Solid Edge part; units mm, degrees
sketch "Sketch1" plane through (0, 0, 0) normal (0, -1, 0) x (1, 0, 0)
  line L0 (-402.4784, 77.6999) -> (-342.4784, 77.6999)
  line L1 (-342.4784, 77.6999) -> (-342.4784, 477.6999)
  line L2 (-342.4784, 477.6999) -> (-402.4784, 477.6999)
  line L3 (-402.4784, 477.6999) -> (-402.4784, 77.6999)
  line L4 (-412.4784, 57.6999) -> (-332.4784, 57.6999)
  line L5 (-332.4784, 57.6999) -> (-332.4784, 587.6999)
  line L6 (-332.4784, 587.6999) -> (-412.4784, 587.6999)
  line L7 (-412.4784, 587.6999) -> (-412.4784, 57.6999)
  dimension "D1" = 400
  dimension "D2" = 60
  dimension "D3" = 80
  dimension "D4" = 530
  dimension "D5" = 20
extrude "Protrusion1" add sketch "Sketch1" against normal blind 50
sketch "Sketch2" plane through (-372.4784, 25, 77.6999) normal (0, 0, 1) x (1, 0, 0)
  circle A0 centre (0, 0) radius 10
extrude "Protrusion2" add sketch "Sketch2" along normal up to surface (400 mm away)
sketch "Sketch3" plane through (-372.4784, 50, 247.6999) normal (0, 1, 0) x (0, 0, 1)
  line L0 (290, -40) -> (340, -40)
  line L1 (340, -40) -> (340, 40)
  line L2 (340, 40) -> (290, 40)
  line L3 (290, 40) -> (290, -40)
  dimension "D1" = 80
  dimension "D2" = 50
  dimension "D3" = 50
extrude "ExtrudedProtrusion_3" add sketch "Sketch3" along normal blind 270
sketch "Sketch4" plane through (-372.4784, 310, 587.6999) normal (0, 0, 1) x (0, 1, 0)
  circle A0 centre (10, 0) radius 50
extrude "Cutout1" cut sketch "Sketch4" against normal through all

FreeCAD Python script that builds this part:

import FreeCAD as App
import Part
import Sketcher

V = App.Vector
Q = App.Units.Quantity

doc = App.newDocument("Part")
params = doc.addObject("Spreadsheet::Sheet", "Params")
for row, (alias, value) in enumerate([
    ("sketch1_width", "80 mm"),
    ("sketch1_width2", "60 mm"),
    ("sketch1_height", "530 mm"),
    ("sketch1_height2", "400 mm"),
    ("pad1_length", "50 mm"),
    ("sketch2_diameter", "20 mm"),
    ("pad2_length", "400 mm"),
    ("sketch3_width", "80 mm"),
    ("sketch3_height", "50 mm"),
    ("pad3_length", "270 mm"),
    ("sketch4_diameter", "100 mm"),
], start=1):
    params.set(f"A{row}", alias)
    params.set(f"B{row}", "=" + value)
    params.setAlias(f"B{row}", alias)

body = doc.addObject("PartDesign::Body", "Body")

sketch1 = body.newObject("Sketcher::SketchObject", "Sketch")
sketch1.AttachmentSupport = (doc.getObject("XZ_Plane"), [""])
sketch1.MapMode = "FlatFace"
sketch1.addGeometry(Part.LineSegment(V(-412.4784, 587.6999, 0), V(-412.4784, 57.6999, 0)), False)
sketch1.addGeometry(Part.LineSegment(V(-412.4784, 57.6999, 0), V(-332.4784, 57.6999, 0)), False)
sketch1.addGeometry(Part.LineSegment(V(-332.4784, 57.6999, 0), V(-332.4784, 587.6999, 0)), False)
sketch1.addGeometry(Part.LineSegment(V(-332.4784, 587.6999, 0), V(-412.4784, 587.6999, 0)), False)
sketch1.addGeometry(Part.LineSegment(V(-342.4784, 77.6999, 0), V(-402.4784, 77.6999, 0)), False)
sketch1.addGeometry(Part.LineSegment(V(-402.4784, 77.6999, 0), V(-402.4784, 477.6999, 0)), False)
sketch1.addGeometry(Part.LineSegment(V(-402.4784, 477.6999, 0), V(-342.4784, 477.6999, 0)), False)
sketch1.addGeometry(Part.LineSegment(V(-342.4784, 477.6999, 0), V(-342.4784, 77.6999, 0)), False)
sketch1.addConstraint(Sketcher.Constraint("Coincident", 0, 2, 1, 1))
sketch1.addConstraint(Sketcher.Constraint("Coincident", 1, 2, 2, 1))
sketch1.addConstraint(Sketcher.Constraint("Coincident", 2, 2, 3, 1))
sketch1.addConstraint(Sketcher.Constraint("Coincident", 3, 2, 0, 1))
sketch1.addConstraint(Sketcher.Constraint("Coincident", 4, 2, 5, 1))
sketch1.addConstraint(Sketcher.Constraint("Coincident", 5, 2, 6, 1))
sketch1.addConstraint(Sketcher.Constraint("Coincident", 6, 2, 7, 1))
sketch1.addConstraint(Sketcher.Constraint("Coincident", 7, 2, 4, 1))
sketch1.addConstraint(Sketcher.Constraint("Vertical", 0))
sketch1.addConstraint(Sketcher.Constraint("Horizontal", 1))
sketch1.addConstraint(Sketcher.Constraint("Vertical", 2))
sketch1.addConstraint(Sketcher.Constraint("Horizontal", 3))
sketch1.addConstraint(Sketcher.Constraint("Horizontal", 4))
sketch1.addConstraint(Sketcher.Constraint("Vertical", 5))
sketch1.addConstraint(Sketcher.Constraint("Horizontal", 6))
sketch1.addConstraint(Sketcher.Constraint("Vertical", 7))
sketch1.addConstraint(Sketcher.Constraint("DistanceX", 1, 1, 1, 2, Q("80 mm")))
sketch1.addConstraint(Sketcher.Constraint("DistanceX", 4, 2, 4, 1, Q("60 mm")))
sketch1.addConstraint(Sketcher.Constraint("DistanceY", 0, 2, 0, 1, Q("530 mm")))
sketch1.addConstraint(Sketcher.Constraint("DistanceY", 5, 1, 5, 2, Q("400 mm")))
sketch1.addConstraint(Sketcher.Constraint("DistanceX", 0, 2, 4, 2, Q("10 mm")))
sketch1.addConstraint(Sketcher.Constraint("DistanceY", 0, 2, 4, 2, Q("20 mm")))
sketch1.addConstraint(Sketcher.Constraint("DistanceX", 0, 2, -1, 1, Q("412.4784 mm")))
sketch1.addConstraint(Sketcher.Constraint("DistanceY", -1, 1, 0, 2, Q("57.7 mm")))
sketch1.setExpression("Constraints[16]", "Params.sketch1_width")
sketch1.setExpression("Constraints[17]", "Params.sketch1_width2")
sketch1.setExpression("Constraints[18]", "Params.sketch1_height")
sketch1.setExpression("Constraints[19]", "Params.sketch1_height2")
pad1 = body.newObject("PartDesign::Pad", "Pad")
pad1.Profile = sketch1
pad1.setExpression("Length", "Params.pad1_length")
pad1.Reversed = True

sketch2 = body.newObject("Sketcher::SketchObject", "Sketch001")
sketch2.AttachmentSupport = (doc.getObject("XY_Plane"), [""])
sketch2.MapMode = "FlatFace"
sketch2.AttachmentOffset = App.Placement(V(0, 0, 77.6999), App.Rotation())
sketch2.addGeometry(Part.Circle(V(-372.4784, 25, 0), V(0, 0, 1), 10), False)
sketch2.addConstraint(Sketcher.Constraint("Diameter", 0, Q("20 mm")))
sketch2.addConstraint(Sketcher.Constraint("DistanceY", -1, 1, 0, 3, Q("25 mm")))
sketch2.addConstraint(Sketcher.Constraint("DistanceX", 0, 3, -1, 1, Q("372.4784 mm")))
sketch2.setExpression("Constraints[0]", "Params.sketch2_diameter")
pad2 = body.newObject("PartDesign::Pad", "Pad001")
pad2.Profile = sketch2
pad2.setExpression("Length", "Params.pad2_length")

sketch3 = body.newObject("Sketcher::SketchObject", "Sketch002")
sketch3.AttachmentSupport = (doc.getObject("XZ_Plane"), [""])
sketch3.MapMode = "FlatFace"
sketch3.AttachmentOffset = App.Placement(V(0, 0, -50), App.Rotation())
sketch3.addGeometry(Part.LineSegment(V(-332.4784, 537.6999, 0), V(-412.4784, 537.6999, 0)), False)
sketch3.addGeometry(Part.LineSegment(V(-412.4784, 537.6999, 0), V(-412.4784, 587.6999, 0)), False)
sketch3.addGeometry(Part.LineSegment(V(-412.4784, 587.6999, 0), V(-332.4784, 587.6999, 0)), False)
sketch3.addGeometry(Part.LineSegment(V(-332.4784, 587.6999, 0), V(-332.4784, 537.6999, 0)), False)
sketch3.addConstraint(Sketcher.Constraint("Coincident", 0, 2, 1, 1))
sketch3.addConstraint(Sketcher.Constraint("Coincident", 1, 2, 2, 1))
sketch3.addConstraint(Sketcher.Constraint("Coincident", 2, 2, 3, 1))
sketch3.addConstraint(Sketcher.Constraint("Coincident", 3, 2, 0, 1))
sketch3.addConstraint(Sketcher.Constraint("Horizontal", 0))
sketch3.addConstraint(Sketcher.Constraint("Vertical", 1))
sketch3.addConstraint(Sketcher.Constraint("Horizontal", 2))
sketch3.addConstraint(Sketcher.Constraint("Vertical", 3))
sketch3.addConstraint(Sketcher.Constraint("DistanceX", 0, 2, 0, 1, Q("80 mm")))
sketch3.addConstraint(Sketcher.Constraint("DistanceY", 1, 1, 1, 2, Q("50 mm")))
sketch3.addConstraint(Sketcher.Constraint("DistanceY", -1, 1, 0, 2, Q("537.7 mm")))
sketch3.addConstraint(Sketcher.Constraint("DistanceX", 0, 2, -1, 1, Q("412.4784 mm")))
sketch3.setExpression("Constraints[8]", "Params.sketch3_width")
sketch3.setExpression("Constraints[9]", "Params.sketch3_height")
pad3 = body.newObject("PartDesign::Pad", "Pad002")
pad3.Profile = sketch3
pad3.setExpression("Length", "Params.pad3_length")
pad3.Reversed = True

sketch4 = body.newObject("Sketcher::SketchObject", "Sketch003")
sketch4.AttachmentSupport = (doc.getObject("XY_Plane"), [""])
sketch4.MapMode = "FlatFace"
sketch4.AttachmentOffset = App.Placement(V(0, 0, 587.6999), App.Rotation())
sketch4.addGeometry(Part.Circle(V(-372.4784, 320, 0), V(0, 0, 1), 50), False)
sketch4.addConstraint(Sketcher.Constraint("Diameter", 0, Q("100 mm")))
sketch4.addConstraint(Sketcher.Constraint("DistanceY", -1, 1, 0, 3, Q("320 mm")))
sketch4.addConstraint(Sketcher.Constraint("DistanceX", 0, 3, -1, 1, Q("372.4784 mm")))
sketch4.setExpression("Constraints[0]", "Params.sketch4_diameter")
pocket1 = body.newObject("PartDesign::Pocket", "Pocket")
pocket1.Profile = sketch4
pocket1.Type = "ThroughAll"

doc.recompute()
